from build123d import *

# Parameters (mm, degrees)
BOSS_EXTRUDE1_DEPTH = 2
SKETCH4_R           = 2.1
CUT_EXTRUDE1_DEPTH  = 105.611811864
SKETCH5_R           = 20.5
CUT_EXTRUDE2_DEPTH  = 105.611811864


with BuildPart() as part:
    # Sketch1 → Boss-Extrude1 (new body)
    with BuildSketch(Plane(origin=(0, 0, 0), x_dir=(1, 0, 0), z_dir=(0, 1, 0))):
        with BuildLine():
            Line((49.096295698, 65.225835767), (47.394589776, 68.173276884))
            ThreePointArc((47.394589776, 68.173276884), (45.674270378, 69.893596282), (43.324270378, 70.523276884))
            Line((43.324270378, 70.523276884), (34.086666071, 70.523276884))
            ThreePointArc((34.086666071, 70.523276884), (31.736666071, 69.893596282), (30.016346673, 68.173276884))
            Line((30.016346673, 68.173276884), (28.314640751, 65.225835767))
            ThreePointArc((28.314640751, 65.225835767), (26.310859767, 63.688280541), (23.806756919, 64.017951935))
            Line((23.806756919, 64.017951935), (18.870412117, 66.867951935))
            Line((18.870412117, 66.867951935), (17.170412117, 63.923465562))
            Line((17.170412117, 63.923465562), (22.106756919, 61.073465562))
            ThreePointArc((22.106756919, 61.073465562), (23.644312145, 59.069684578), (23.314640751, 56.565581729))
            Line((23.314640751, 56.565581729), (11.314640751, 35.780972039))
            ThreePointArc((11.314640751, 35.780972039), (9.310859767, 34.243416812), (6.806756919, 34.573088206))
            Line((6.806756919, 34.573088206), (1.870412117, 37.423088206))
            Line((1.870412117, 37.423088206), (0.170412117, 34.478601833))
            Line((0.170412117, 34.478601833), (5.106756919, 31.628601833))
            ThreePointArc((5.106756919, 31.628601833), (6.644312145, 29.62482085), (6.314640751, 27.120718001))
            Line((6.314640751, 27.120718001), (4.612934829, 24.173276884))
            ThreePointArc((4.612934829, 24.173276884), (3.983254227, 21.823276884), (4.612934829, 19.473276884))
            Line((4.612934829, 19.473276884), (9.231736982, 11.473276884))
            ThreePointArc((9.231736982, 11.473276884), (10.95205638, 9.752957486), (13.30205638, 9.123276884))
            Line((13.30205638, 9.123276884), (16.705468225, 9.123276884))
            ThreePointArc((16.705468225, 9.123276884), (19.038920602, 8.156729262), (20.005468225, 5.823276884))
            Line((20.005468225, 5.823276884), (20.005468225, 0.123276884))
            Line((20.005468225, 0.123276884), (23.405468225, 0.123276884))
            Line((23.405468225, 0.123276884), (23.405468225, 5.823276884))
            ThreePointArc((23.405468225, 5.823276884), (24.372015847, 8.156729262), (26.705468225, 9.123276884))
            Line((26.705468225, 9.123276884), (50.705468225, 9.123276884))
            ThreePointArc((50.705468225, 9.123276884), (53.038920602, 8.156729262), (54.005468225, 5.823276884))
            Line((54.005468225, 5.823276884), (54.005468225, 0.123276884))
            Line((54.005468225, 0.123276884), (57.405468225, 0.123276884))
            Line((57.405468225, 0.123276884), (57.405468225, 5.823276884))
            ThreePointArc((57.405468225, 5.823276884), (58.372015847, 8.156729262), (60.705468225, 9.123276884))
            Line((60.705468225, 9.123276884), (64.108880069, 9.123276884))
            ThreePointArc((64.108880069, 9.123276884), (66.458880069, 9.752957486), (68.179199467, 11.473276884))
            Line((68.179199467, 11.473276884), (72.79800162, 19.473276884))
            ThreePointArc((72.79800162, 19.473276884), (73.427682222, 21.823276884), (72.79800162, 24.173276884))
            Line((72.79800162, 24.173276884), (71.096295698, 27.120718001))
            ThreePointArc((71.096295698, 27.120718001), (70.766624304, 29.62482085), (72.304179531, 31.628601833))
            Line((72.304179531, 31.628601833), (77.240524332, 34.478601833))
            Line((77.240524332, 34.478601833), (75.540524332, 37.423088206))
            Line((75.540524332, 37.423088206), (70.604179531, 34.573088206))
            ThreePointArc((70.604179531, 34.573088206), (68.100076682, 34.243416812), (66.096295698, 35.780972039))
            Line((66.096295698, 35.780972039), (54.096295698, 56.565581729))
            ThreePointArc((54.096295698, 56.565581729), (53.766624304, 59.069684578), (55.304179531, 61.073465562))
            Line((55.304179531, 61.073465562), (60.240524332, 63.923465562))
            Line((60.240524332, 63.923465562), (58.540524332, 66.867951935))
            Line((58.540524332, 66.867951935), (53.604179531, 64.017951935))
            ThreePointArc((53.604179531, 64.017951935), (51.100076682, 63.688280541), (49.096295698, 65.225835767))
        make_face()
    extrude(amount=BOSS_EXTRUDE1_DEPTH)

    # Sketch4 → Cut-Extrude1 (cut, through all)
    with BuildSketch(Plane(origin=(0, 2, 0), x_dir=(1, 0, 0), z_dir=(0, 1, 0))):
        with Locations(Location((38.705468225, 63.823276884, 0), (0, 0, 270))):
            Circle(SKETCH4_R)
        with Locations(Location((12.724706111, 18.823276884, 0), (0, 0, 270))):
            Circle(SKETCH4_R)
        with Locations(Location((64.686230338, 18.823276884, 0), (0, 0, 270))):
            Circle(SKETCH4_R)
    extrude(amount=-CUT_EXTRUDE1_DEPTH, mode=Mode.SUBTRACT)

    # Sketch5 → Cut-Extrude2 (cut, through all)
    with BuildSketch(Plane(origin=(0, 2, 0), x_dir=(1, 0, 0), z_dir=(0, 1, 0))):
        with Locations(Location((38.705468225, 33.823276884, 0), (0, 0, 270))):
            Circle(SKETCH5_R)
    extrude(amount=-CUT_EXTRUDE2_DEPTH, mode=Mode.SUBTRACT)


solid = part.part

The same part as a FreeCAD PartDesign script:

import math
import FreeCAD as App
import Part
import Sketcher
Q = App.Units.Quantity

doc = App.newDocument("Part")
body = doc.addObject("PartDesign::Body", "Body")

sketch1 = body.newObject("Sketcher::SketchObject", "Sketch")
sketch1.AttachmentSupport = (doc.getObject("XZ_Plane"), [""])
sketch1.MapMode = "FlatFace"
sketch1.addGeometry([
    Part.LineSegment(App.Vector(49.1, -65.2, 0), App.Vector(47.4, -68.2, 0)),
    Part.ArcOfCircle(Part.Circle(App.Vector(43.3, -65.8, 0), App.Vector(0, 0, 1), 4.7), math.radians(-90), math.radians(-30)),
    Part.LineSegment(App.Vector(43.3, -70.5, 0), App.Vector(34.1, -70.5, 0)),
    Part.ArcOfCircle(Part.Circle(App.Vector(34.1, -65.8, 0), App.Vector(0, 0, 1), 4.7), math.radians(-150), math.radians(-90)),
    Part.LineSegment(App.Vector(30, -68.2, 0), App.Vector(28.3, -65.2, 0)),
    Part.ArcOfCircle(Part.Circle(App.Vector(25.5, -66.9, 0), App.Vector(0, 0, 1), 3.3), math.radians(30), math.radians(120)),
    Part.LineSegment(App.Vector(23.8, -64, 0), App.Vector(18.9, -66.9, 0)),
    Part.LineSegment(App.Vector(18.9, -66.9, 0), App.Vector(17.2, -63.9, 0)),
    Part.LineSegment(App.Vector(17.2, -63.9, 0), App.Vector(22.1, -61.1, 0)),
    Part.ArcOfCircle(Part.Circle(App.Vector(20.5, -58.2, 0), App.Vector(0, 0, 1), 3.3), math.radians(-60), math.radians(30)),
    Part.LineSegment(App.Vector(23.3, -56.6, 0), App.Vector(11.3, -35.8, 0)),
    Part.ArcOfCircle(Part.Circle(App.Vector(8.5, -37.4, 0), App.Vector(0, 0, 1), 3.3), math.radians(30), math.radians(120)),
    Part.LineSegment(App.Vector(6.8, -34.6, 0), App.Vector(1.9, -37.4, 0)),
    Part.LineSegment(App.Vector(1.9, -37.4, 0), App.Vector(0.2, -34.5, 0)),
    Part.LineSegment(App.Vector(0.2, -34.5, 0), App.Vector(5.1, -31.6, 0)),
    Part.ArcOfCircle(Part.Circle(App.Vector(3.5, -28.8, 0), App.Vector(0, 0, 1), 3.3), math.radians(-60), math.radians(30)),
    Part.LineSegment(App.Vector(6.3, -27.1, 0), App.Vector(4.6, -24.2, 0)),
    Part.ArcOfCircle(Part.Circle(App.Vector(8.7, -21.8, 0), App.Vector(0, 0, 1), 4.7), math.radians(150), math.radians(210)),
    Part.LineSegment(App.Vector(4.6, -19.5, 0), App.Vector(9.2, -11.5, 0)),
    Part.ArcOfCircle(Part.Circle(App.Vector(13.3, -13.8, 0), App.Vector(0, 0, 1), 4.7), math.radians(90), math.radians(150)),
    Part.LineSegment(App.Vector(13.3, -9.1, 0), App.Vector(16.7, -9.1, 0)),
    Part.ArcOfCircle(Part.Circle(App.Vector(16.7, -5.8, 0), App.Vector(0, 0, 1), 3.3), math.radians(-90), math.radians(0)),
    Part.LineSegment(App.Vector(20, -5.8, 0), App.Vector(20, -0.1, 0)),
    Part.LineSegment(App.Vector(20, -0.1, 0), App.Vector(23.4, -0.1, 0)),
    Part.LineSegment(App.Vector(23.4, -0.1, 0), App.Vector(23.4, -5.8, 0)),
    Part.ArcOfCircle(Part.Circle(App.Vector(26.7, -5.8, 0), App.Vector(0, 0, 1), 3.3), math.radians(180), math.radians(270)),
    Part.LineSegment(App.Vector(26.7, -9.1, 0), App.Vector(50.7, -9.1, 0)),
    Part.ArcOfCircle(Part.Circle(App.Vector(50.7, -5.8, 0), App.Vector(0, 0, 1), 3.3), math.radians(-90), math.radians(0)),
    Part.LineSegment(App.Vector(54, -5.8, 0), App.Vector(54, -0.1, 0)),
    Part.LineSegment(App.Vector(54, -0.1, 0), App.Vector(57.4, -0.1, 0)),
    Part.LineSegment(App.Vector(57.4, -0.1, 0), App.Vector(57.4, -5.8, 0)),
    Part.ArcOfCircle(Part.Circle(App.Vector(60.7, -5.8, 0), App.Vector(0, 0, 1), 3.3), math.radians(180), math.radians(270)),
    Part.LineSegment(App.Vector(60.7, -9.1, 0), App.Vector(64.1, -9.1, 0)),
    Part.ArcOfCircle(Part.Circle(App.Vector(64.1, -13.8, 0), App.Vector(0, 0, 1), 4.7), math.radians(30), math.radians(90)),
    Part.LineSegment(App.Vector(68.2, -11.5, 0), App.Vector(72.8, -19.5, 0)),
    Part.ArcOfCircle(Part.Circle(App.Vector(68.7, -21.8, 0), App.Vector(0, 0, 1), 4.7), math.radians(-30), math.radians(30)),
    Part.LineSegment(App.Vector(72.8, -24.2, 0), App.Vector(71.1, -27.1, 0)),
    Part.ArcOfCircle(Part.Circle(App.Vector(74, -28.8, 0), App.Vector(0, 0, 1), 3.3), math.radians(150), math.radians(240)),
    Part.LineSegment(App.Vector(72.3, -31.6, 0), App.Vector(77.2, -34.5, 0)),
    Part.LineSegment(App.Vector(77.2, -34.5, 0), App.Vector(75.5, -37.4, 0)),
    Part.LineSegment(App.Vector(75.5, -37.4, 0), App.Vector(70.6, -34.6, 0)),
    Part.ArcOfCircle(Part.Circle(App.Vector(69, -37.4, 0), App.Vector(0, 0, 1), 3.3), math.radians(60), math.radians(150)),
    Part.LineSegment(App.Vector(66.1, -35.8, 0), App.Vector(54.1, -56.6, 0)),
    Part.ArcOfCircle(Part.Circle(App.Vector(57, -58.2, 0), App.Vector(0, 0, 1), 3.3), math.radians(150), math.radians(240)),
    Part.LineSegment(App.Vector(55.3, -61.1, 0), App.Vector(60.2, -63.9, 0)),
    Part.LineSegment(App.Vector(60.2, -63.9, 0), App.Vector(58.5, -66.9, 0)),
    Part.LineSegment(App.Vector(58.5, -66.9, 0), App.Vector(53.6, -64, 0)),
    Part.ArcOfCircle(Part.Circle(App.Vector(52, -66.9, 0), App.Vector(0, 0, 1), 3.3), math.radians(60), math.radians(150)),
], False)
sketch1.addConstraint([
    Sketcher.Constraint("Tangent", 0, 2, 1, 2),
    Sketcher.Constraint("Tangent", 1, 1, 2, 1),
    Sketcher.Constraint("Tangent", 2, 2, 3, 2),
    Sketcher.Constraint("Tangent", 3, 1, 4, 1),
    Sketcher.Constraint("Tangent", 4, 2, 5, 1),
    Sketcher.Constraint("Tangent", 5, 2, 6, 1),
    Sketcher.Constraint("Coincident", 6, 2, 7, 1),
    Sketcher.Constraint("Coincident", 7, 2, 8, 1),
    Sketcher.Constraint("Tangent", 8, 2, 9, 1),
    Sketcher.Constraint("Tangent", 9, 2, 10, 1),
    Sketcher.Constraint("Tangent", 10, 2, 11, 1),
    Sketcher.Constraint("Tangent", 11, 2, 12, 1),
    Sketcher.Constraint("Coincident", 12, 2, 13, 1),
    Sketcher.Constraint("Coincident", 13, 2, 14, 1),
    Sketcher.Constraint("Tangent", 14, 2, 15, 1),
    Sketcher.Constraint("Tangent", 15, 2, 16, 1),
    Sketcher.Constraint("Tangent", 16, 2, 17, 2),
    Sketcher.Constraint("Tangent", 17, 1, 18, 1),
    Sketcher.Constraint("Tangent", 18, 2, 19, 2),
    Sketcher.Constraint("Tangent", 19, 1, 20, 1),
    Sketcher.Constraint("Tangent", 20, 2, 21, 1),
    Sketcher.Constraint("Tangent", 21, 2, 22, 1),
    Sketcher.Constraint("Coincident", 22, 2, 23, 1),
    Sketcher.Constraint("Coincident", 23, 2, 24, 1),
    Sketcher.Constraint("Tangent", 24, 2, 25, 1),
    Sketcher.Constraint("Tangent", 25, 2, 26, 1),
    Sketcher.Constraint("Tangent", 26, 2, 27, 1),
    Sketcher.Constraint("Tangent", 27, 2, 28, 1),
    Sketcher.Constraint("Coincident", 28, 2, 29, 1),
    Sketcher.Constraint("Coincident", 29, 2, 30, 1),
    Sketcher.Constraint("Tangent", 30, 2, 31, 1),
    Sketcher.Constraint("Tangent", 31, 2, 32, 1),
    Sketcher.Constraint("Tangent", 32, 2, 33, 2),
    Sketcher.Constraint("Tangent", 33, 1, 34, 1),
    Sketcher.Constraint("Tangent", 34, 2, 35, 2),
    Sketcher.Constraint("Tangent", 35, 1, 36, 1),
    Sketcher.Constraint("Tangent", 36, 2, 37, 1),
    Sketcher.Constraint("Tangent", 37, 2, 38, 1),
    Sketcher.Constraint("Coincident", 38, 2, 39, 1),
    Sketcher.Constraint("Coincident", 39, 2, 40, 1),
    Sketcher.Constraint("Tangent", 40, 2, 41, 1),
    Sketcher.Constraint("Tangent", 41, 2, 42, 1),
    Sketcher.Constraint("Tangent", 42, 2, 43, 1),
    Sketcher.Constraint("Tangent", 43, 2, 44, 1),
    Sketcher.Constraint("Coincident", 44, 2, 45, 1),
    Sketcher.Constraint("Coincident", 45, 2, 46, 1),
    Sketcher.Constraint("Tangent", 46, 2, 47, 1),
    Sketcher.Constraint("Tangent", 47, 2, 0, 1),
    Sketcher.Constraint("Horizontal", 2),
    Sketcher.Constraint("Horizontal", 20),
    Sketcher.Constraint("Vertical", 22),
    Sketcher.Constraint("Horizontal", 23),
    Sketcher.Constraint("Vertical", 24),
    Sketcher.Constraint("Horizontal", 26),
    Sketcher.Constraint("Vertical", 28),
    Sketcher.Constraint("Horizontal", 29),
    Sketcher.Constraint("Vertical", 30),
    Sketcher.Constraint("Horizontal", 32),
    Sketcher.Constraint("Equal", 1, 3),
    Sketcher.Constraint("Equal", 5, 9),
    Sketcher.Constraint("Equal", 9, 11),
    Sketcher.Constraint("Equal", 11, 15),
    Sketcher.Constraint("Equal", 3, 17),
    Sketcher.Constraint("Equal", 17, 19),
    Sketcher.Constraint("Equal", 15, 21),
    Sketcher.Constraint("Equal", 21, 25),
    Sketcher.Constraint("Equal", 25, 27),
    Sketcher.Constraint("Equal", 27, 31),
    Sketcher.Constraint("Equal", 19, 33),
    Sketcher.Constraint("Equal", 33, 35),
    Sketcher.Constraint("Equal", 31, 37),
    Sketcher.Constraint("Equal", 37, 41),
    Sketcher.Constraint("Equal", 41, 43),
    Sketcher.Constraint("Equal", 43, 47),
    Sketcher.Constraint("Perpendicular", 4, 6),
    Sketcher.Constraint("Perpendicular", 6, 7),
    Sketcher.Constraint("Perpendicular", 7, 8),
    Sketcher.Constraint("Perpendicular", 8, 10),
    Sketcher.Constraint("Perpendicular", 10, 12),
    Sketcher.Constraint("Perpendicular", 12, 13),
    Sketcher.Constraint("Perpendicular", 13, 14),
    Sketcher.Constraint("Perpendicular", 14, 16),
    Sketcher.Constraint("Parallel", 0, 18),
    Sketcher.Constraint("Parallel", 16, 34),
    Sketcher.Constraint("Parallel", 18, 36),
    Sketcher.Constraint("Perpendicular", 36, 38),
    Sketcher.Constraint("Perpendicular", 38, 39),
    Sketcher.Constraint("Perpendicular", 39, 40),
    Sketcher.Constraint("Perpendicular", 40, 42),
    Sketcher.Constraint("Perpendicular", 42, 44),
    Sketcher.Constraint("Perpendicular", 44, 45),
    Sketcher.Constraint("Perpendicular", 45, 46),
    Sketcher.Constraint("Horizontal", 21, 3, 25, 3),
    Sketcher.Constraint("Horizontal", 27, 3, 31, 3),
    Sketcher.Constraint("Horizontal", 17, 3, 35, 3),
    Sketcher.Constraint("Horizontal", 15, 3, 37, 3),
    Sketcher.Constraint("Horizontal", 11, 3, 41, 3),
    Sketcher.Constraint("Horizontal", 9, 3, 43, 3),
    Sketcher.Constraint("Horizontal", 5, 3, 47, 3),
    Sketcher.Constraint("Horizontal", 0, 2, 3, 1),
    Sketcher.Constraint("Horizontal", 23, 2, 28, 2),
    Sketcher.Constraint("Horizontal", 13, 2, 38, 2),
    Sketcher.Constraint("Horizontal", 12, 2, 39, 2),
    Sketcher.Constraint("Horizontal", 7, 2, 44, 2),
    Sketcher.Constraint("Horizontal", 6, 2, 45, 2),
    Sketcher.Constraint("Equal", 23, 29),
    Sketcher.Constraint("Equal", 20, 32),
    Sketcher.Constraint("Equal", 6, 8),
    Sketcher.Constraint("Equal", 8, 12),
    Sketcher.Constraint("Equal", 7, 13),
    Sketcher.Constraint("Equal", 12, 14),
    Sketcher.Constraint("Equal", 4, 16),
    Sketcher.Constraint("Radius", 1, Q("4.7 mm")),
    Sketcher.Constraint("Radius", 5, Q("3.3 mm")),
    Sketcher.Constraint("DistanceX", 26, 1, 26, 2, Q("24 mm")),
    Sketcher.Constraint("Angle", 0, Q("-120 deg")),
    Sketcher.Constraint("Distance", 10, Q("24 mm")),
    Sketcher.Constraint("DistanceX", 23, 1, 23, 2, Q("3.4 mm")),
    Sketcher.Constraint("DistanceY", 22, 1, 22, 2, Q("5.7 mm")),
    Sketcher.Constraint("Distance", 6, Q("5.7 mm")),
    Sketcher.Constraint("Distance", 7, Q("3.4 mm")),
    Sketcher.Constraint("DistanceX", -1, 1, 34, 2, Q("72.798002 mm")),
    Sketcher.Constraint("DistanceX", 20, 1, 20, 2, Q("3.403412 mm")),
    Sketcher.Constraint("DistanceY", 13, 2, -1, 1, Q("34.478602 mm")),
    Sketcher.Constraint("DistanceX", -1, 1, 33, 1, Q("68.179199 mm")),
    Sketcher.Constraint("Distance", 0, Q("3.403412 mm")),
])
pad1 = body.newObject("PartDesign::Pad", "Pad")
pad1.Profile = sketch1
pad1.Length = 2
pad1.Reversed = True

sketch2 = body.newObject("Sketcher::SketchObject", "Sketch001")
sketch2.AttachmentSupport = (doc.getObject("XZ_Plane"), [""])
sketch2.MapMode = "FlatFace"
sketch2.AttachmentOffset = App.Placement(App.Vector(0, 0, -2), App.Rotation())
sketch2.addGeometry([
    Part.Circle(App.Vector(38.7, -63.8, 0), App.Vector(0, 0, 1), 2.1),
    Part.Circle(App.Vector(12.7, -18.8, 0), App.Vector(0, 0, 1), 2.1),
    Part.Circle(App.Vector(64.7, -18.8, 0), App.Vector(0, 0, 1), 2.1),
], False)
sketch2.addConstraint([
    Sketcher.Constraint("Equal", 0, 1),
    Sketcher.Constraint("Equal", 1, 2),
    Sketcher.Constraint("Horizontal", 1, 3, 2, 3),
    Sketcher.Constraint("Diameter", 0, Q("4.2 mm")),
    Sketcher.Constraint("DistanceY", 0, 3, 1, 3, Q("45 mm")),
    Sketcher.Constraint("DistanceX", -1, 1, 0, 3, Q("38.705468 mm")),
    Sketcher.Constraint("DistanceX", -1, 1, 2, 3, Q("64.68623 mm")),
    Sketcher.Constraint("DistanceY", 0, 3, -1, 1, Q("63.823277 mm")),
    Sketcher.Constraint("DistanceX", -1, 1, 1, 3, Q("12.724706 mm")),
])
pocket1 = body.newObject("PartDesign::Pocket", "Pocket")
pocket1.Profile = sketch2
pocket1.Type = "ThroughAll"
pocket1.Reversed = True

sketch3 = body.newObject("Sketcher::SketchObject", "Sketch002")
sketch3.AttachmentSupport = (doc.getObject("XZ_Plane"), [""])
sketch3.MapMode = "FlatFace"
sketch3.AttachmentOffset = App.Placement(App.Vector(0, 0, -2), App.Rotation())
sketch3.addGeometry(Part.Circle(App.Vector(39, -34, 0), App.Vector(0, 0, 1), 20), False)
sketch3.addConstraint([
    Sketcher.Constraint("Diameter", 0, Q("41 mm")),
    Sketcher.Constraint("DistanceX", -1, 1, 0, 3, Q("38.705468 mm")),
    Sketcher.Constraint("DistanceY", 0, 3, -1, 1, Q("33.823277 mm")),
])
pocket2 = body.newObject("PartDesign::Pocket", "Pocket001")
pocket2.Profile = sketch3
pocket2.Type = "ThroughAll"
pocket2.Reversed = True

doc.recompute()
